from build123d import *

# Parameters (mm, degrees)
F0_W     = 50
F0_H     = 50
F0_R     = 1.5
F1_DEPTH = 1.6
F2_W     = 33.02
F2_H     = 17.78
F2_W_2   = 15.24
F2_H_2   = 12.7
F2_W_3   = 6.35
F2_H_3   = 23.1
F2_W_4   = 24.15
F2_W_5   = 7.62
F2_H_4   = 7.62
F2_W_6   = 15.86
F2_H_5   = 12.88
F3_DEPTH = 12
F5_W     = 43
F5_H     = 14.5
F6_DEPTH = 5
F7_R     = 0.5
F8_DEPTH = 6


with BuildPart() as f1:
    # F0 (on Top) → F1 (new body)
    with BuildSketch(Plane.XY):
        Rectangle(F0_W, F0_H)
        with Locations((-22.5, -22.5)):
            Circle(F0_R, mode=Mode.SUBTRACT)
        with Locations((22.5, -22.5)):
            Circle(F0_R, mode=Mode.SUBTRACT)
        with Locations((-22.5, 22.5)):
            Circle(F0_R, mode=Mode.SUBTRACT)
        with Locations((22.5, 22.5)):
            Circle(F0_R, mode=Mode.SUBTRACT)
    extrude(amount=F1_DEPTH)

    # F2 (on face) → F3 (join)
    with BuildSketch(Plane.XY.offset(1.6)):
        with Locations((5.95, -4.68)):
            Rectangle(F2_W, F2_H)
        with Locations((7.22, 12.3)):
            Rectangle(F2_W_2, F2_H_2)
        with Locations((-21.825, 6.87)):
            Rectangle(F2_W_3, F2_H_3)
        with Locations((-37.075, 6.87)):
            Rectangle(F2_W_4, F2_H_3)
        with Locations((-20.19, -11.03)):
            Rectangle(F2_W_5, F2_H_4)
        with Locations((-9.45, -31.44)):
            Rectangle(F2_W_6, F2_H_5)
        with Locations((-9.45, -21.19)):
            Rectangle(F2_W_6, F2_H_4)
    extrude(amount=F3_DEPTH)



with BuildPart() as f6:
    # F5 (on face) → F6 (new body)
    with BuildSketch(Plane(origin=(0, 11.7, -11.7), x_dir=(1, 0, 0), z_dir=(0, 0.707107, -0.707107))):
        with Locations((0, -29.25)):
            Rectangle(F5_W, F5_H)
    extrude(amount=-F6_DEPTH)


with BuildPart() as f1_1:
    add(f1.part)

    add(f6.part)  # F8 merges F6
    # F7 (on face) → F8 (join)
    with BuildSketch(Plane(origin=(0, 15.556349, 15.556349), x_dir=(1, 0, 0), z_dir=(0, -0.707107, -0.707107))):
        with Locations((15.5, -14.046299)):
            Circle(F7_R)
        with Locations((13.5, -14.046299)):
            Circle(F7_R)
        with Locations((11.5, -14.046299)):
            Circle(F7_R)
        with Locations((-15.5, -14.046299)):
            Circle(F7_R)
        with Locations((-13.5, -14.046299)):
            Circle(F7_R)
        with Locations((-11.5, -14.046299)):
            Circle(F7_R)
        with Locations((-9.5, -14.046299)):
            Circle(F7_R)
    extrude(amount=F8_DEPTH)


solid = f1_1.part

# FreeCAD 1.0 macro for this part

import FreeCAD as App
import Part
import Sketcher
from FreeCAD import Vector

doc = App.newDocument("Part")
body = doc.addObject("PartDesign::Body", "Body")

# Sketch on XY plane
sketch1 = body.newObject("Sketcher::SketchObject", "Sketch")
sketch1.AttachmentSupport = (doc.getObject("XY_Plane"), [""])
sketch1.MapMode = "FlatFace"
sketch1.addGeometry([
    Part.LineSegment(Vector(-25, 25, 0), Vector(-25, -25, 0)),  # 0
    Part.LineSegment(Vector(-25, -25, 0), Vector(25, -25, 0)),  # 1
    Part.LineSegment(Vector(25, -25, 0), Vector(25, 25, 0)),  # 2
    Part.LineSegment(Vector(25, 25, 0), Vector(-25, 25, 0)),  # 3
    Part.Circle(Vector(-22.5, -22.5, 0), Vector(0, 0, 1), 1.5),  # 4
    Part.Circle(Vector(22.5, -22.5, 0), Vector(0, 0, 1), 1.5),  # 5
    Part.Circle(Vector(-22.5, 22.5, 0), Vector(0, 0, 1), 1.5),  # 6
    Part.Circle(Vector(22.5, 22.5, 0), Vector(0, 0, 1), 1.5),  # 7
], False)
sketch1.addConstraint([
    Sketcher.Constraint("Coincident", 0, 2, 1, 1),
    Sketcher.Constraint("Coincident", 1, 2, 2, 1),
    Sketcher.Constraint("Coincident", 2, 2, 3, 1),
    Sketcher.Constraint("Coincident", 3, 2, 0, 1),
    Sketcher.Constraint("Vertical", 0),
    Sketcher.Constraint("Horizontal", 1),
    Sketcher.Constraint("Vertical", 2),
    Sketcher.Constraint("Horizontal", 3),
    Sketcher.Constraint("Equal", 4, 5),
    Sketcher.Constraint("Equal", 5, 6),
    Sketcher.Constraint("Equal", 6, 7),
    Sketcher.Constraint("Symmetric", 5, 3, 6, 3, -1, 1),
    Sketcher.Constraint("Symmetric", 4, 3, 7, 3, -1, 1),
    Sketcher.Constraint("Symmetric", 0, 2, 2, 2, -1, 1),
    Sketcher.Constraint("Symmetric", 4, 3, 5, 3, -2),
    Sketcher.Constraint("Equal", 3, 0),
    Sketcher.Constraint("Diameter", 4, 3.0),
    Sketcher.Constraint("DistanceX", 1, 1, 1, 2, 50.0),
    Sketcher.Constraint("DistanceX", 4, 3, 5, 3, 45.0),
    Sketcher.Constraint("DistanceY", 4, 3, 6, 3, 45.0),
])
pad1 = body.newObject("PartDesign::Pad", "Pad")
pad1.Profile = sketch1
pad1.Length = 1.6

# Sketch on XY plane
sketch2 = body.newObject("Sketcher::SketchObject", "Sketch001")
sketch2.AttachmentSupport = (doc.getObject("XY_Plane"), [""])
sketch2.MapMode = "FlatFace"
sketch2.AttachmentOffset = App.Placement(Vector(0, 0, 1.6), App.Rotation())
sketch2.addGeometry([
    Part.LineSegment(Vector(-11, 4, 0), Vector(-11, -14, 0)),  # 0
    Part.LineSegment(Vector(-11, -14, 0), Vector(22, -14, 0)),  # 1
    Part.LineSegment(Vector(22, -14, 0), Vector(22, 4, 0)),  # 2
    Part.LineSegment(Vector(22, 4, 0), Vector(-11, 4, 0)),  # 3
    Part.LineSegment(Vector(0, 19, 0), Vector(0, 6, 0)),  # 4
    Part.LineSegment(Vector(0, 6, 0), Vector(15, 6, 0)),  # 5
    Part.LineSegment(Vector(15, 6, 0), Vector(15, 19, 0)),  # 6
    Part.LineSegment(Vector(15, 19, 0), Vector(0, 19, 0)),  # 7
    Part.LineSegment(Vector(-19, -5, 0), Vector(-19, 18, 0)),  # 8
    Part.LineSegment(Vector(-19, 18, 0), Vector(-49, 18, 0)),  # 9
    Part.LineSegment(Vector(-49, 18, 0), Vector(-49, -5, 0)),  # 10
    Part.LineSegment(Vector(-49, -5, 0), Vector(-19, -5, 0)),  # 11
    Part.LineSegment(Vector(-24, -7, 0), Vector(-24, -15, 0)),  # 12
    Part.LineSegment(Vector(-24, -15, 0), Vector(-16, -15, 0)),  # 13
    Part.LineSegment(Vector(-16, -15, 0), Vector(-16, -7, 0)),  # 14
    Part.LineSegment(Vector(-16, -7, 0), Vector(-24, -7, 0)),  # 15
    Part.LineSegment(Vector(-17, -38, 0), Vector(-2, -38, 0)),  # 16
    Part.LineSegment(Vector(-2, -38, 0), Vector(-2, -17, 0)),  # 17
    Part.LineSegment(Vector(-2, -17, 0), Vector(-17, -17, 0)),  # 18
    Part.LineSegment(Vector(-17, -17, 0), Vector(-17, -38, 0)),  # 19
], False)
sketch2.addConstraint([
    Sketcher.Constraint("Coincident", 0, 2, 1, 1),
    Sketcher.Constraint("Coincident", 1, 2, 2, 1),
    Sketcher.Constraint("Coincident", 2, 2, 3, 1),
    Sketcher.Constraint("Coincident", 3, 2, 0, 1),
    Sketcher.Constraint("Coincident", 4, 2, 5, 1),
    Sketcher.Constraint("Coincident", 5, 2, 6, 1),
    Sketcher.Constraint("Coincident", 6, 2, 7, 1),
    Sketcher.Constraint("Coincident", 7, 2, 4, 1),
    Sketcher.Constraint("Coincident", 8, 2, 9, 1),
    Sketcher.Constraint("Coincident", 9, 2, 10, 1),
    Sketcher.Constraint("Coincident", 10, 2, 11, 1),
    Sketcher.Constraint("Coincident", 11, 2, 8, 1),
    Sketcher.Constraint("Coincident", 12, 2, 13, 1),
    Sketcher.Constraint("Coincident", 13, 2, 14, 1),
    Sketcher.Constraint("Coincident", 14, 2, 15, 1),
    Sketcher.Constraint("Coincident", 15, 2, 12, 1),
    Sketcher.Constraint("Coincident", 16, 2, 17, 1),
    Sketcher.Constraint("Coincident", 17, 2, 18, 1),
    Sketcher.Constraint("Coincident", 18, 2, 19, 1),
    Sketcher.Constraint("Coincident", 19, 2, 16, 1),
    Sketcher.Constraint("Vertical", 0),
    Sketcher.Constraint("Horizontal", 1),
    Sketcher.Constraint("Vertical", 2),
    Sketcher.Constraint("Horizontal", 3),
    Sketcher.Constraint("Vertical", 4),
    Sketcher.Constraint("Horizontal", 5),
    Sketcher.Constraint("Vertical", 6),
    Sketcher.Constraint("Horizontal", 7),
    Sketcher.Constraint("Vertical", 8),
    Sketcher.Constraint("Horizontal", 9),
    Sketcher.Constraint("Vertical", 10),
    Sketcher.Constraint("Horizontal", 11),
    Sketcher.Constraint("Vertical", 12),
    Sketcher.Constraint("Horizontal", 13),
    Sketcher.Constraint("Vertical", 14),
    Sketcher.Constraint("Horizontal", 15),
    Sketcher.Constraint("Horizontal", 16),
    Sketcher.Constraint("Vertical", 17),
    Sketcher.Constraint("Horizontal", 18),
    Sketcher.Constraint("Vertical", 19),
    Sketcher.Constraint("Equal", 15, 12),
    Sketcher.Constraint("DistanceX", 9, 2, 9, 1, 30.5),
    Sketcher.Constraint("DistanceY", 4, 2, 4, 1, 12.7),
    Sketcher.Constraint("DistanceY", 8, 1, 8, 2, 23.1),
    Sketcher.Constraint("DistanceY", 17, 1, 17, 2, 20.5),
    Sketcher.Constraint("DistanceX", 12, 2, -1, 1, 24.0),
    Sketcher.Constraint("DistanceX", 18, 2, 13, 2, 1.0),
    Sketcher.Constraint("DistanceX", 1, 1, 1, 2, 33.02),
    Sketcher.Constraint("DistanceX", 5, 1, 5, 2, 15.24),
    Sketcher.Constraint("DistanceX", 13, 1, 13, 2, 7.62),
    Sketcher.Constraint("DistanceX", 16, 1, 16, 2, 15.86),
    Sketcher.Constraint("DistanceY", 0, 2, 0, 1, 17.78),
    Sketcher.Constraint("DistanceX", 4, 2, -1, 1, 0.4),
    Sketcher.Constraint("DistanceX", 3, 2, 5, 2, 25.4),
    Sketcher.Constraint("DistanceY", 17, 2, 11, 2, 12.7),
    Sketcher.Constraint("DistanceY", 0, 2, -1, 1, 13.57),
    Sketcher.Constraint("DistanceY", -1, 1, 4, 2, 5.95),
    Sketcher.Constraint("DistanceX", 8, 2, -1, 1, 18.65),
    Sketcher.Constraint("DistanceY", -1, 1, 8, 2, 18.42),
    Sketcher.Constraint("DistanceY", 12, 2, -1, 1, 14.84),
])
pad2 = body.newObject("PartDesign::Pad", "Pad001")
pad2.Profile = sketch2
pad2.Length = 12
body2 = doc.addObject("PartDesign::Body", "Body001")

# Sketch on an angled plane
sketch3 = body2.newObject("Sketcher::SketchObject", "Sketch002")
sketch3.Placement = App.Placement(Vector(0, 11.7, -11.7), App.Rotation(Vector(1, 0, 0), Vector(0, -0.707106781, -0.707106781), Vector(0, 0.707106781, -0.707106781), "ZXY"))
sketch3.addGeometry([
    Part.LineSegment(Vector(-22, -22, 0), Vector(-22, -36, 0)),
    Part.LineSegment(Vector(-22, -36, 0), Vector(22, -36, 0)),
    Part.LineSegment(Vector(22, -36, 0), Vector(22, -22, 0)),
    Part.LineSegment(Vector(22, -22, 0), Vector(-22, -22, 0)),
], False)
sketch3.addConstraint([
    Sketcher.Constraint("Coincident", 0, 2, 1, 1),
    Sketcher.Constraint("Coincident", 1, 2, 2, 1),
    Sketcher.Constraint("Coincident", 2, 2, 3, 1),
    Sketcher.Constraint("Coincident", 3, 2, 0, 1),
    Sketcher.Constraint("Vertical", 0),
    Sketcher.Constraint("Horizontal", 1),
    Sketcher.Constraint("Vertical", 2),
    Sketcher.Constraint("Horizontal", 3),
    Sketcher.Constraint("DistanceX", 1, 1, 1, 2, 43.0),
    Sketcher.Constraint("DistanceY", 0, 2, 0, 1, 14.5),
    Sketcher.Constraint("DistanceY", 2, 2, -1, 1, 22.0),
    Sketcher.Constraint("DistanceX", 0, 2, -1, 1, 21.5),
])
pad3 = body2.newObject("PartDesign::Pad", "Pad002")
pad3.Profile = sketch3
pad3.Length = 5
pad3.Reversed = True
body.AllowCompound = True
doc.recompute()

boolean = body.newObject("PartDesign::Boolean", "Boolean")
boolean.Type = "Fuse"
boolean.addObjects([body2])

# Sketch on an angled plane
sketch4 = body.newObject("Sketcher::SketchObject", "Sketch003")
sketch4.Placement = App.Placement(Vector(0, 15.556349, 15.556349), App.Rotation(Vector(1, 0, 0), Vector(0, -0.707106781, 0.707106781), Vector(0, -0.707106781, -0.707106781), "ZXY"))
sketch4.addGeometry([
    Part.Circle(Vector(15.5, -14, 0), Vector(0, 0, 1), 0.5),  # 0
    Part.Circle(Vector(13.5, -14, 0), Vector(0, 0, 1), 0.5),  # 1
    Part.Circle(Vector(11.5, -14, 0), Vector(0, 0, 1), 0.5),  # 2
    Part.Circle(Vector(-15.5, -14, 0), Vector(0, 0, 1), 0.5),  # 3
    Part.Circle(Vector(-13.5, -14, 0), Vector(0, 0, 1), 0.5),  # 4
    Part.Circle(Vector(-11.5, -14, 0), Vector(0, 0, 1), 0.5),  # 5
    Part.Circle(Vector(-9.5, -14, 0), Vector(0, 0, 1), 0.5),  # 6
], False)
sketch4.addConstraint([
    Sketcher.Constraint("Equal", 0, 1),
    Sketcher.Constraint("Equal", 1, 2),
    Sketcher.Constraint("Equal", 2, 3),
    Sketcher.Constraint("Equal", 3, 4),
    Sketcher.Constraint("Equal", 4, 5),
    Sketcher.Constraint("Equal", 5, 6),
    Sketcher.Constraint("Symmetric", 0, 3, 3, 3, -2),
    Sketcher.Constraint("Symmetric", 1, 3, 4, 3, -2),
    Sketcher.Constraint("Symmetric", 2, 3, 5, 3, -2),
    Sketcher.Constraint("Horizontal", 0, 3, 1, 3),
    Sketcher.Constraint("Horizontal", 1, 3, 2, 3),
    Sketcher.Constraint("Horizontal", 5, 3, 6, 3),
    Sketcher.Constraint("Diameter", 0, 1.0),
    Sketcher.Constraint("DistanceX", 1, 3, 0, 3, 2.0),
    Sketcher.Constraint("DistanceX", 2, 3, 1, 3, 2.0),
    Sketcher.Constraint("DistanceX", 3, 3, 2, 3, 27.0),
    Sketcher.Constraint("DistanceX", 5, 3, 6, 3, 2.0),
    Sketcher.Constraint("DistanceY", 0, 3, -1, 1, 14.046299),
])
pad4 = body.newObject("PartDesign::Pad", "Pad003")
pad4.Profile = sketch4
pad4.Length = 6

doc.recompute()
